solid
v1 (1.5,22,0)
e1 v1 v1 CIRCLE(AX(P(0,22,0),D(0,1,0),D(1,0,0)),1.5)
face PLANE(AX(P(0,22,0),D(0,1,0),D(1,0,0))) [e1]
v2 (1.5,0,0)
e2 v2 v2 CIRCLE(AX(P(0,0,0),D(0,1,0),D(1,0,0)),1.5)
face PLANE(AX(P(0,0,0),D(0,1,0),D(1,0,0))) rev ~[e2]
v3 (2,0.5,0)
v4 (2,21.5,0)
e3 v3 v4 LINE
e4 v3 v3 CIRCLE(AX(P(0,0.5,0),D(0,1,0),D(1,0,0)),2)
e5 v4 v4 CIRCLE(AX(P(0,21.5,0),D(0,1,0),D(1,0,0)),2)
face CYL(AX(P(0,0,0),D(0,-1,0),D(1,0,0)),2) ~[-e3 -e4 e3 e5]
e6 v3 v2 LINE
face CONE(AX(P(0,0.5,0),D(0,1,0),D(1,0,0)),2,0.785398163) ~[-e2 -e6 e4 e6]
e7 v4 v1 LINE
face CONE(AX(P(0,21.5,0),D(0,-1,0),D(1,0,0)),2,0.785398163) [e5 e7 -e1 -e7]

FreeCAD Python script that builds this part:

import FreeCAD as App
import Part
import Sketcher

V = App.Vector


def edges_at(feature, points):
    """Names of the edges that pass closest to the given points."""
    edges = feature.Shape.Edges
    near = lambda p: min(range(len(edges)), key=lambda i: edges[i].distToShape(Part.Vertex(*p))[0])
    return sorted({f"Edge{near(p) + 1}" for p in points})

doc = App.newDocument("Part")
params = doc.addObject("Spreadsheet::Sheet", "Params")
for row, (alias, value) in enumerate([
    ("sketch1_diameter", "4 mm"),
    ("pad1_length", "22 mm"),
    ("chamfer_size", "0.5 mm"),
], start=1):
    params.set(f"A{row}", alias)
    params.set(f"B{row}", "=" + value)
    params.setAlias(f"B{row}", alias)

body = doc.addObject("PartDesign::Body", "Body")

sketch1 = doc.addObject("Sketcher::SketchObject", "Sketch")
body.addObject(sketch1)
sketch1.AttachmentSupport = (doc.XZ_Plane, [""])
sketch1.MapMode = "FlatFace"
sketch1.addGeometry(Part.Circle(V(0, 0, 0), V(0, 0, 1), 2), False)
sketch1.addConstraint([
    Sketcher.Constraint("Coincident", 0, 3, -1, 1),
    Sketcher.Constraint("Diameter", 0, 4.0),
])
sketch1.setExpression("Constraints[1]", "Params.sketch1_diameter")
pad1 = doc.addObject("PartDesign::Pad", "Pad")
body.addObject(pad1)
pad1.Profile = sketch1
pad1.setExpression("Length", "Params.pad1_length")
pad1.Reversed = True
doc.recompute()

chamfer = doc.addObject("PartDesign::Chamfer", "Chamfer")
body.addObject(chamfer)
chamfer.Base = (pad1, edges_at(pad1, [(-2, 0, 0), (-2, 22, 0)]))
chamfer.setExpression("Size", "Params.chamfer_size")

doc.recompute()
